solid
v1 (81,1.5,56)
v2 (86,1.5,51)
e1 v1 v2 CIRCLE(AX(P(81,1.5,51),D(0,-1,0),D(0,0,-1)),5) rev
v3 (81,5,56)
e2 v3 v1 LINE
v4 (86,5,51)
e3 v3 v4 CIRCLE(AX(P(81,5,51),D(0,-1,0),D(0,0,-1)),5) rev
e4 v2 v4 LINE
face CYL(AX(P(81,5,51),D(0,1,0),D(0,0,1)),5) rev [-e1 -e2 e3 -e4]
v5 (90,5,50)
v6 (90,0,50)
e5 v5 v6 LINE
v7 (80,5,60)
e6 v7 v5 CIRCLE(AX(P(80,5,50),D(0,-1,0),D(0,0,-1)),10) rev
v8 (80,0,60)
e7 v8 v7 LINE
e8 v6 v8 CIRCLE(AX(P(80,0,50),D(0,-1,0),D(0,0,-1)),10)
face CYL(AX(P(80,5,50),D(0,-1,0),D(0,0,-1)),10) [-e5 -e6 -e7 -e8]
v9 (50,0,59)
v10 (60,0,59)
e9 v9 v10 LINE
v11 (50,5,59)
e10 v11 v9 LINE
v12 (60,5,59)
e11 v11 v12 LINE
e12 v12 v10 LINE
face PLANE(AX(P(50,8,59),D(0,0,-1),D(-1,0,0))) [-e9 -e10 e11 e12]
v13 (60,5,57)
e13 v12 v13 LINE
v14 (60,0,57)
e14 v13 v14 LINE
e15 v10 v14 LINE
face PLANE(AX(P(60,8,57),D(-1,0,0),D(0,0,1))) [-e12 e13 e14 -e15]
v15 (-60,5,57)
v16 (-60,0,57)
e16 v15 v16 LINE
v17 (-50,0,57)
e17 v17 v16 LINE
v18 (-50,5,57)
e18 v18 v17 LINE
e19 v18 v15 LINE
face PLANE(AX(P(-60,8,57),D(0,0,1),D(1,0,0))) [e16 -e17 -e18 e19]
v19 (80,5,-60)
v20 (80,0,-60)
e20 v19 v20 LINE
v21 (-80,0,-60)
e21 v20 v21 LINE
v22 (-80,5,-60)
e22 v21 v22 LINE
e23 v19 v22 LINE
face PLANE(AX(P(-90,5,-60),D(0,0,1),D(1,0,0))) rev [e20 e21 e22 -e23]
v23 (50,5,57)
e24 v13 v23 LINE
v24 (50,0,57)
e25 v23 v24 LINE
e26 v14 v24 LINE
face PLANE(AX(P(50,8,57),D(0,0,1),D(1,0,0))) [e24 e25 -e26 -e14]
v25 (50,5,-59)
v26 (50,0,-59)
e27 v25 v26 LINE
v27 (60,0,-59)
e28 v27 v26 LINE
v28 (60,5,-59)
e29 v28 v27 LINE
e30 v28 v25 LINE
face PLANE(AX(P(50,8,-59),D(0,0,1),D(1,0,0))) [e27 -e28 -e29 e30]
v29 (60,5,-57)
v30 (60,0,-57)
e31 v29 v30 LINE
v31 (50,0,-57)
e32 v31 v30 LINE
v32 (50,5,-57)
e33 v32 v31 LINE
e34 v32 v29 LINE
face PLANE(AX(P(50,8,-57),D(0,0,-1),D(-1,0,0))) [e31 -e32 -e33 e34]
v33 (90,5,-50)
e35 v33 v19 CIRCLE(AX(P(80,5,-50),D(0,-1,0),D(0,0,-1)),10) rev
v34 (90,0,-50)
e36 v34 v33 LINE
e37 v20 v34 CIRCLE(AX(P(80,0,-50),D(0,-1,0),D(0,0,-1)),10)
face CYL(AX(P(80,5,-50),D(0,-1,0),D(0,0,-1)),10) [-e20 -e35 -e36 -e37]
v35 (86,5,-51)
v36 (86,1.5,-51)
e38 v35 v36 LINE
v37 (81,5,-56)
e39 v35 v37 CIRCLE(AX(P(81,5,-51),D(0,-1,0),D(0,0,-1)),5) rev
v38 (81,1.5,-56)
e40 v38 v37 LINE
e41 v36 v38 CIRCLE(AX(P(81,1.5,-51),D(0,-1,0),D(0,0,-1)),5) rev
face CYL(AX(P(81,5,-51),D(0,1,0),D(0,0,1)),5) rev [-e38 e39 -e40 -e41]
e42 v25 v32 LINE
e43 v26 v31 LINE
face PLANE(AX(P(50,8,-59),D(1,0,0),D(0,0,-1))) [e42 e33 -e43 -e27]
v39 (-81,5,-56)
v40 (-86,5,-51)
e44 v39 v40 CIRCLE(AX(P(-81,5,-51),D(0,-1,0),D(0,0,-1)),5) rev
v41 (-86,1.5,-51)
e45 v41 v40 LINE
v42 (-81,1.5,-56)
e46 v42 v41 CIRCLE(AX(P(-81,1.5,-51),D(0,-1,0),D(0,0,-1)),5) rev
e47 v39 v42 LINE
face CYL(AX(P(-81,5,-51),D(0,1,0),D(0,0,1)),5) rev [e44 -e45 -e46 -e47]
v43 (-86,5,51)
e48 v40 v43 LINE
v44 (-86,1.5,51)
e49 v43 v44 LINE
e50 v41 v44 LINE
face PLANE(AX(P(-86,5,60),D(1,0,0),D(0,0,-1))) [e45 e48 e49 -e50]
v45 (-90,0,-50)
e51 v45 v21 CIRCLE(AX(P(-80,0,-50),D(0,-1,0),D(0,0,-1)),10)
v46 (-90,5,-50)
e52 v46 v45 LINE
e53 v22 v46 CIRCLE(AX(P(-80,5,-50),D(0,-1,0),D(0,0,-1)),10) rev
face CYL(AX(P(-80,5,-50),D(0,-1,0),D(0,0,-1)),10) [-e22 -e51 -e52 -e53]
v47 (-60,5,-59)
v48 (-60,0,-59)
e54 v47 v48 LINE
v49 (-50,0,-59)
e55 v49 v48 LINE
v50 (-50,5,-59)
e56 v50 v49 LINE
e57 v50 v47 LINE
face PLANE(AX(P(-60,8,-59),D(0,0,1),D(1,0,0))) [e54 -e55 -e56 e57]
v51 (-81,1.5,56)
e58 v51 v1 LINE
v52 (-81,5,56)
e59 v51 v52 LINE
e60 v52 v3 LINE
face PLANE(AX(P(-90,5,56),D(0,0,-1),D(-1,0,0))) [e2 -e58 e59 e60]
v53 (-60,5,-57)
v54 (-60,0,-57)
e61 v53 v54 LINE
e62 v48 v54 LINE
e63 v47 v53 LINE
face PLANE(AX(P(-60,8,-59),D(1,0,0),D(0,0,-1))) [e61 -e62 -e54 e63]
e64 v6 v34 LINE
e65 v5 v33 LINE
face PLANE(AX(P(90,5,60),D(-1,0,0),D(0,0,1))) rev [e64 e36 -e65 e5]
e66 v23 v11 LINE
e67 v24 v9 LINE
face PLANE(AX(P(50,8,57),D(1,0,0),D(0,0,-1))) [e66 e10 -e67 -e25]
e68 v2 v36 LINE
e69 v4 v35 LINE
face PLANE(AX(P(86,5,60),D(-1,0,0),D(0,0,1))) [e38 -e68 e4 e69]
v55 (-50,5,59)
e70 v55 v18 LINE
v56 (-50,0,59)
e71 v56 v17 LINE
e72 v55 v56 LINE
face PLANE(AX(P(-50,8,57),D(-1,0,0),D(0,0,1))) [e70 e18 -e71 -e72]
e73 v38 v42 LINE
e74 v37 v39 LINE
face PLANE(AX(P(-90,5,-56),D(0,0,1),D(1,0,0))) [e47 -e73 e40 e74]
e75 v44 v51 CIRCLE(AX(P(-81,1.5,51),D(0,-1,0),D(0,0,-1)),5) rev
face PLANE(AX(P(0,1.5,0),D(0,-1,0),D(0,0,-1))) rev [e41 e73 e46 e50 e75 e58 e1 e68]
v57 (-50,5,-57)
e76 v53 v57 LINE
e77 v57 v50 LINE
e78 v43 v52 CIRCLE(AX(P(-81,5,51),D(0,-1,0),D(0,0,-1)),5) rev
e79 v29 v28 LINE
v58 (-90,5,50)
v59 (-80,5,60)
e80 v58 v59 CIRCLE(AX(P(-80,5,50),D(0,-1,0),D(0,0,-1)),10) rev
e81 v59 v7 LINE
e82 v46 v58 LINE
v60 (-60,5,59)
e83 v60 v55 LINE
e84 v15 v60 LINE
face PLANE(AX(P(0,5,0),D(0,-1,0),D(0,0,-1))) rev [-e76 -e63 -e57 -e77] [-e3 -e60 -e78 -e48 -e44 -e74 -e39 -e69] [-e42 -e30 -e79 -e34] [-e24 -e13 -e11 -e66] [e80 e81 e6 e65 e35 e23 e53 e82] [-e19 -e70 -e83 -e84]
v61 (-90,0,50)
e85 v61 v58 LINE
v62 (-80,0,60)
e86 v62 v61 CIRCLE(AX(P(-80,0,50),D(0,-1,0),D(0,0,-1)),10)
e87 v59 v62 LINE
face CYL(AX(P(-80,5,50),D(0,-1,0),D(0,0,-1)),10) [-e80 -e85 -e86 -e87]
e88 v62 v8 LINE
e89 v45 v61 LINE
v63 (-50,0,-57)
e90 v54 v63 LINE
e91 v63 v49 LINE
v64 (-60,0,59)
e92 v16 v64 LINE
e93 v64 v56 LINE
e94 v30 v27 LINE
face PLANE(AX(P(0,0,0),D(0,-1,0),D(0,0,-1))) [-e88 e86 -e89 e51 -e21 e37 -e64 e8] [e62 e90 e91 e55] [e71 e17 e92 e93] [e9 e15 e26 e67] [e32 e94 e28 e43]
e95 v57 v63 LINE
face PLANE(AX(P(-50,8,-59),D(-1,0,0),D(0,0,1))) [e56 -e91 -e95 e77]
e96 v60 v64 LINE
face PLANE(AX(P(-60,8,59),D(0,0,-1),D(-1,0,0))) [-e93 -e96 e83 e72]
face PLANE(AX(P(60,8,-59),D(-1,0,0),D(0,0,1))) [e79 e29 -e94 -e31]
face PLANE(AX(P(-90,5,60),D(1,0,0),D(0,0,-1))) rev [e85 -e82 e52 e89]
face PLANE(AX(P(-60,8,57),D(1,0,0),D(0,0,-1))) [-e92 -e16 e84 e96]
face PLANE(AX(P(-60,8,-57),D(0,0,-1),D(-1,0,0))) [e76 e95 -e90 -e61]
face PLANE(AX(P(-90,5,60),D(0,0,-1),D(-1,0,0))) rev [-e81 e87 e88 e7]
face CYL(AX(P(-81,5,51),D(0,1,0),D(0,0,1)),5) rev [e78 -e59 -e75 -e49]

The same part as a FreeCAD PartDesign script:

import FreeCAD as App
import Part
import Sketcher

V = App.Vector


def edges_at(feature, points):
    """Names of the edges that pass closest to the given points."""
    edges = feature.Shape.Edges
    near = lambda p: min(range(len(edges)), key=lambda i: edges[i].distToShape(Part.Vertex(*p))[0])
    return sorted({f"Edge{near(p) + 1}" for p in points})


def faces_at(feature, points):
    """Names of the faces that lie closest to the given points."""
    faces = feature.Shape.Faces
    near = lambda p: min(range(len(faces)), key=lambda i: faces[i].distToShape(Part.Vertex(*p))[0])
    return sorted({f"Face{near(p) + 1}" for p in points})


def add_polygon(sketch, points):
    """Adds a closed chain of lines whose ends are joined by coincident constraints."""
    first, n = sketch.GeometryCount, len(points)
    for a, b in zip(points, points[1:] + points[:1]):
        sketch.addGeometry(Part.LineSegment(App.Vector(*a, 0), App.Vector(*b, 0)), False)
    for i in range(n):
        sketch.addConstraint(Sketcher.Constraint("Coincident", first + i, 2, first + (i + 1) % n, 1))

doc = App.newDocument("Part")
body = doc.addObject("PartDesign::Body", "Body")

# Sketch on XZ plane
sketch1 = doc.addObject("Sketcher::SketchObject", "Sketch")
body.addObject(sketch1)
sketch1.AttachmentSupport = (doc.XZ_Plane, [""])
sketch1.MapMode = "FlatFace"
add_polygon(sketch1, [(-90, -60), (-90, 60), (90, 60), (90, -60)])  # lines 0-3
sketch1.addConstraint([
    Sketcher.Constraint("Vertical", 0),
    Sketcher.Constraint("Horizontal", 1),
    Sketcher.Constraint("Vertical", 2),
    Sketcher.Constraint("Horizontal", 3),
    Sketcher.Constraint("Symmetric", 0, 2, 2, 2, -1, 1),
    Sketcher.Constraint("DistanceX", 1, 1, 1, 2, 180.0),
    Sketcher.Constraint("DistanceY", 0, 1, 0, 2, 120.0),
])
pad1 = doc.addObject("PartDesign::Pad", "Pad")
body.addObject(pad1)
pad1.Profile = sketch1
pad1.Length = 5
pad1.Reversed = True
doc.recompute()

fillet = doc.addObject("PartDesign::Fillet", "Fillet")
body.addObject(fillet)
fillet.Base = (pad1, edges_at(pad1, [(-90, 2.5, 60)]))
fillet.Radius = 10
doc.recompute()

fillet2 = doc.addObject("PartDesign::Fillet", "Fillet001")
body.addObject(fillet2)
fillet2.Base = (fillet, edges_at(fillet, [(90, 2.5, 60)]))
fillet2.Radius = 10
doc.recompute()

fillet3 = doc.addObject("PartDesign::Fillet", "Fillet002")
body.addObject(fillet3)
fillet3.Base = (fillet2, edges_at(fillet2, [(90, 2.5, -60)]))
fillet3.Radius = 10
doc.recompute()

fillet4 = doc.addObject("PartDesign::Fillet", "Fillet003")
body.addObject(fillet4)
fillet4.Base = (fillet3, edges_at(fillet3, [(-90, 2.5, -60)]))
fillet4.Radius = 10
doc.recompute()

thickness = doc.addObject("PartDesign::Thickness", "Thickness")
body.addObject(thickness)
thickness.Base = (fillet4, faces_at(fillet4, [(0, 5, 0)]))
thickness.Value = 4
thickness.Reversed = True
thickness.Join = "Intersection"

# Sketch on XZ plane
sketch2 = doc.addObject("Sketcher::SketchObject", "Sketch001")
body.addObject(sketch2)
sketch2.AttachmentSupport = (doc.XZ_Plane, [""])
sketch2.MapMode = "FlatFace"
sketch2.AttachmentOffset = App.Placement(V(0, 0, -10), App.Rotation())
add_polygon(sketch2, [(-86, -56), (-86, 56), (86, 56), (86, -56)])  # lines 0-3
sketch2.addConstraint([
    Sketcher.Constraint("Vertical", 0),
    Sketcher.Constraint("Horizontal", 1),
    Sketcher.Constraint("Vertical", 2),
    Sketcher.Constraint("Horizontal", 3),
    Sketcher.Constraint("Symmetric", 0, 2, 2, 2, -1, 1),
    Sketcher.Constraint("DistanceX", 1, 1, 1, 2, 172.0),
    Sketcher.Constraint("DistanceY", 0, 1, 0, 2, 112.0),
])
pocket1 = doc.addObject("PartDesign::Pocket", "Pocket")
body.addObject(pocket1)
pocket1.Profile = sketch2
pocket1.Length = 8.5
pocket1.Reversed = True
doc.recompute()

fillet5 = doc.addObject("PartDesign::Fillet", "Fillet004")
body.addObject(fillet5)
fillet5.Base = (pocket1, edges_at(pocket1, [(-86, 3.25, -56)]))
fillet5.Radius = 5
doc.recompute()

fillet6 = doc.addObject("PartDesign::Fillet", "Fillet005")
body.addObject(fillet6)
fillet6.Base = (fillet5, edges_at(fillet5, [(86, 3.25, -56)]))
fillet6.Radius = 5
doc.recompute()

fillet7 = doc.addObject("PartDesign::Fillet", "Fillet006")
body.addObject(fillet7)
fillet7.Base = (fillet6, edges_at(fillet6, [(-86, 3.25, 56)]))
fillet7.Radius = 5
doc.recompute()

fillet8 = doc.addObject("PartDesign::Fillet", "Fillet007")
body.addObject(fillet8)
fillet8.Base = (fillet7, edges_at(fillet7, [(86, 3.25, 56)]))
fillet8.Radius = 5

# Sketch on XZ plane
sketch3 = doc.addObject("Sketcher::SketchObject", "Sketch002")
body.addObject(sketch3)
sketch3.AttachmentSupport = (doc.XZ_Plane, [""])
sketch3.MapMode = "FlatFace"
add_polygon(sketch3, [(-60, -59), (-60, -57), (-50, -57), (-50, -59)])  # lines 0-3
add_polygon(sketch3, [(50, -59), (50, -57), (60, -57), (60, -59)])  # lines 4-7
add_polygon(sketch3, [(50, 57), (50, 59), (60, 59), (60, 57)])  # lines 8-11
add_polygon(sketch3, [(-60, 57), (-60, 59), (-50, 59), (-50, 57)])  # lines 12-15
sketch3.addConstraint([
    Sketcher.Constraint("Vertical", 0),
    Sketcher.Constraint("Horizontal", 1),
    Sketcher.Constraint("Vertical", 2),
    Sketcher.Constraint("Horizontal", 3),
    Sketcher.Constraint("Vertical", 4),
    Sketcher.Constraint("Horizontal", 5),
    Sketcher.Constraint("Vertical", 6),
    Sketcher.Constraint("Horizontal", 7),
    Sketcher.Constraint("Vertical", 8),
    Sketcher.Constraint("Horizontal", 9),
    Sketcher.Constraint("Vertical", 10),
    Sketcher.Constraint("Horizontal", 11),
    Sketcher.Constraint("Vertical", 12),
    Sketcher.Constraint("Horizontal", 13),
    Sketcher.Constraint("Vertical", 14),
    Sketcher.Constraint("Horizontal", 15),
    Sketcher.Constraint("Symmetric", 2, 2, 8, 2, -1, 1),
    Sketcher.Constraint("Symmetric", 0, 2, 10, 2, -1, 1),
    Sketcher.Constraint("Symmetric", 6, 2, 12, 2, -1, 1),
    Sketcher.Constraint("Symmetric", 4, 2, 14, 2, -1, 1),
    Sketcher.Constraint("Symmetric", 1, 2, 4, 2, -2),
    Sketcher.Constraint("Symmetric", 3, 2, 6, 2, -2),
    Sketcher.Constraint("DistanceX", 1, 1, 1, 2, 10.0),
    Sketcher.Constraint("DistanceY", 0, 1, 0, 2, 2.0),
    Sketcher.Constraint("DistanceX", 0, 2, -1, 1, 60.0),
    Sketcher.Constraint("DistanceY", 0, 2, -1, 1, 57.0),
])
pocket2 = doc.addObject("PartDesign::Pocket", "Pocket001")
body.addObject(pocket2)
pocket2.Profile = sketch3
pocket2.Length = 8

doc.recompute()
